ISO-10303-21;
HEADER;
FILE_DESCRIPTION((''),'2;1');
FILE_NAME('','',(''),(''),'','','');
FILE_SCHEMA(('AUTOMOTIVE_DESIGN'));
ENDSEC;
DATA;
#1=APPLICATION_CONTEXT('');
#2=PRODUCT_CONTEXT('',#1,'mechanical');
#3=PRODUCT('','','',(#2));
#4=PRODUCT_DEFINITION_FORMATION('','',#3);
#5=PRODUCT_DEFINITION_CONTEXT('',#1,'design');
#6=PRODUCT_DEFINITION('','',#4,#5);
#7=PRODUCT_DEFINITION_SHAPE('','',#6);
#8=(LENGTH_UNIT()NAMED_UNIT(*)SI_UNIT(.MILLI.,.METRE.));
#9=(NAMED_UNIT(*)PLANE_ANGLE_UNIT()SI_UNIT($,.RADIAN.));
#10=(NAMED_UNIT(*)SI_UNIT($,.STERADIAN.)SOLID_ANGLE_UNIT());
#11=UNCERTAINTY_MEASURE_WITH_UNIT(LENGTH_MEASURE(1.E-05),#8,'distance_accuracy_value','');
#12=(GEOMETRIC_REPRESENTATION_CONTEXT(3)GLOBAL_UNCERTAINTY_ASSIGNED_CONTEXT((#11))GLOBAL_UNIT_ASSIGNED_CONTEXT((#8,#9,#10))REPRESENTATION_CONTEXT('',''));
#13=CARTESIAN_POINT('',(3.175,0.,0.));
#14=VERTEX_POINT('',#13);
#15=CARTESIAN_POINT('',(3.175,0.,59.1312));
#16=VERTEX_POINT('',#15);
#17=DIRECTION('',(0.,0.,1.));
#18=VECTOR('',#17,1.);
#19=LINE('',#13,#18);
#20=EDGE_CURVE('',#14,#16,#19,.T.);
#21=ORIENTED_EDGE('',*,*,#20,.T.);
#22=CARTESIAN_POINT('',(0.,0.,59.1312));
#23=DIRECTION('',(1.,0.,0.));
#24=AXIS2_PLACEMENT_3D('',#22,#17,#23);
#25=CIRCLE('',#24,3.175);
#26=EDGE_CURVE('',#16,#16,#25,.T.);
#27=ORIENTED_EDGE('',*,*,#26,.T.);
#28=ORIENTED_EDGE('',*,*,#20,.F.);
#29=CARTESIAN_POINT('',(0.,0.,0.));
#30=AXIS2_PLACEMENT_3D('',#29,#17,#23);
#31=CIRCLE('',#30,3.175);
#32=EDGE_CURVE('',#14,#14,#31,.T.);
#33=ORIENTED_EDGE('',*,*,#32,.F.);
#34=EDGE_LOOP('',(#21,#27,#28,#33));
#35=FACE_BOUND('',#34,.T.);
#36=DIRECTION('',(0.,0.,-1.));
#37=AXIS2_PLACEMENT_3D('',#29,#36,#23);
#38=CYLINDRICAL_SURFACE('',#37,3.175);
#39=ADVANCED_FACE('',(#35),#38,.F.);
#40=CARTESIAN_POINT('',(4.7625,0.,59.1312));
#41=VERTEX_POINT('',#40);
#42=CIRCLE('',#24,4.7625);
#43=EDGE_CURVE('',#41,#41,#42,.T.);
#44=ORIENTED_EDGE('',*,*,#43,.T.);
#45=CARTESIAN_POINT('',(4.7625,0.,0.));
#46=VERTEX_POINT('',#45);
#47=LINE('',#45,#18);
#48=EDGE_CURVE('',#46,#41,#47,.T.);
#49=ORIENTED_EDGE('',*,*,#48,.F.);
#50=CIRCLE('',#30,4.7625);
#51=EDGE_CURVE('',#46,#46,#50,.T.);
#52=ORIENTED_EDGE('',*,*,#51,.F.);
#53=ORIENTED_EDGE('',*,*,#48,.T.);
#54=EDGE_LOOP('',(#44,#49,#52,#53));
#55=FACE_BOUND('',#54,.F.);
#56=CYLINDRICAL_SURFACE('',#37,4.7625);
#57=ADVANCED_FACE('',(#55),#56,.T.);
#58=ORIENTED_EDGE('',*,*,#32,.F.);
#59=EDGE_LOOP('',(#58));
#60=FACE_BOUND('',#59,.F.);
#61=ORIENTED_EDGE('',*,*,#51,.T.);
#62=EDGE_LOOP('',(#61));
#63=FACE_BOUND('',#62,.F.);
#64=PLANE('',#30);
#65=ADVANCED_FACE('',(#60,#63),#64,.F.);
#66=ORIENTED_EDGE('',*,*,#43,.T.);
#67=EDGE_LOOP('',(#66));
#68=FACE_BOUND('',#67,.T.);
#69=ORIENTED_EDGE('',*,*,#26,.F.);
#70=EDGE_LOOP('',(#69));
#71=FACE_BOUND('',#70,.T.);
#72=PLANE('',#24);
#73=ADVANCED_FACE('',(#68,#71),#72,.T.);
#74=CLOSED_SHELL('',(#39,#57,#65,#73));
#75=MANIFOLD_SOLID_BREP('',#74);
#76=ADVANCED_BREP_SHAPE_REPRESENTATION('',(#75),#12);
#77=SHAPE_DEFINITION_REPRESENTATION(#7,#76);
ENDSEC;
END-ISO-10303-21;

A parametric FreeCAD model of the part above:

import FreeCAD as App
import Part
import Sketcher
Q = App.Units.Quantity

doc = App.newDocument("Part")
body = doc.addObject("PartDesign::Body", "Body")

# Sketch on XY plane
sketch1 = body.newObject("Sketcher::SketchObject", "Sketch")
sketch1.AttachmentSupport = (doc.getObject("XY_Plane"), [""])
sketch1.MapMode = "FlatFace"
sketch1.addGeometry([
    Part.Circle(App.Vector(0, 0, 0), App.Vector(0, 0, 1), 4.8),
    Part.Circle(App.Vector(0, 0, 0), App.Vector(0, 0, 1), 3.2),
], False)
sketch1.addConstraint([
    Sketcher.Constraint("Coincident", 0, 3, -1, 1),
    Sketcher.Constraint("Coincident", 1, 3, -1, 1),
    Sketcher.Constraint("Diameter", 1, Q("0.25 in")),
    Sketcher.Constraint("Diameter", 0, Q("0.375 in")),
])
pad1 = body.newObject("PartDesign::Pad", "Pad")
pad1.Profile = sketch1
pad1.Length = Q("2.328 in")

doc.recompute()
